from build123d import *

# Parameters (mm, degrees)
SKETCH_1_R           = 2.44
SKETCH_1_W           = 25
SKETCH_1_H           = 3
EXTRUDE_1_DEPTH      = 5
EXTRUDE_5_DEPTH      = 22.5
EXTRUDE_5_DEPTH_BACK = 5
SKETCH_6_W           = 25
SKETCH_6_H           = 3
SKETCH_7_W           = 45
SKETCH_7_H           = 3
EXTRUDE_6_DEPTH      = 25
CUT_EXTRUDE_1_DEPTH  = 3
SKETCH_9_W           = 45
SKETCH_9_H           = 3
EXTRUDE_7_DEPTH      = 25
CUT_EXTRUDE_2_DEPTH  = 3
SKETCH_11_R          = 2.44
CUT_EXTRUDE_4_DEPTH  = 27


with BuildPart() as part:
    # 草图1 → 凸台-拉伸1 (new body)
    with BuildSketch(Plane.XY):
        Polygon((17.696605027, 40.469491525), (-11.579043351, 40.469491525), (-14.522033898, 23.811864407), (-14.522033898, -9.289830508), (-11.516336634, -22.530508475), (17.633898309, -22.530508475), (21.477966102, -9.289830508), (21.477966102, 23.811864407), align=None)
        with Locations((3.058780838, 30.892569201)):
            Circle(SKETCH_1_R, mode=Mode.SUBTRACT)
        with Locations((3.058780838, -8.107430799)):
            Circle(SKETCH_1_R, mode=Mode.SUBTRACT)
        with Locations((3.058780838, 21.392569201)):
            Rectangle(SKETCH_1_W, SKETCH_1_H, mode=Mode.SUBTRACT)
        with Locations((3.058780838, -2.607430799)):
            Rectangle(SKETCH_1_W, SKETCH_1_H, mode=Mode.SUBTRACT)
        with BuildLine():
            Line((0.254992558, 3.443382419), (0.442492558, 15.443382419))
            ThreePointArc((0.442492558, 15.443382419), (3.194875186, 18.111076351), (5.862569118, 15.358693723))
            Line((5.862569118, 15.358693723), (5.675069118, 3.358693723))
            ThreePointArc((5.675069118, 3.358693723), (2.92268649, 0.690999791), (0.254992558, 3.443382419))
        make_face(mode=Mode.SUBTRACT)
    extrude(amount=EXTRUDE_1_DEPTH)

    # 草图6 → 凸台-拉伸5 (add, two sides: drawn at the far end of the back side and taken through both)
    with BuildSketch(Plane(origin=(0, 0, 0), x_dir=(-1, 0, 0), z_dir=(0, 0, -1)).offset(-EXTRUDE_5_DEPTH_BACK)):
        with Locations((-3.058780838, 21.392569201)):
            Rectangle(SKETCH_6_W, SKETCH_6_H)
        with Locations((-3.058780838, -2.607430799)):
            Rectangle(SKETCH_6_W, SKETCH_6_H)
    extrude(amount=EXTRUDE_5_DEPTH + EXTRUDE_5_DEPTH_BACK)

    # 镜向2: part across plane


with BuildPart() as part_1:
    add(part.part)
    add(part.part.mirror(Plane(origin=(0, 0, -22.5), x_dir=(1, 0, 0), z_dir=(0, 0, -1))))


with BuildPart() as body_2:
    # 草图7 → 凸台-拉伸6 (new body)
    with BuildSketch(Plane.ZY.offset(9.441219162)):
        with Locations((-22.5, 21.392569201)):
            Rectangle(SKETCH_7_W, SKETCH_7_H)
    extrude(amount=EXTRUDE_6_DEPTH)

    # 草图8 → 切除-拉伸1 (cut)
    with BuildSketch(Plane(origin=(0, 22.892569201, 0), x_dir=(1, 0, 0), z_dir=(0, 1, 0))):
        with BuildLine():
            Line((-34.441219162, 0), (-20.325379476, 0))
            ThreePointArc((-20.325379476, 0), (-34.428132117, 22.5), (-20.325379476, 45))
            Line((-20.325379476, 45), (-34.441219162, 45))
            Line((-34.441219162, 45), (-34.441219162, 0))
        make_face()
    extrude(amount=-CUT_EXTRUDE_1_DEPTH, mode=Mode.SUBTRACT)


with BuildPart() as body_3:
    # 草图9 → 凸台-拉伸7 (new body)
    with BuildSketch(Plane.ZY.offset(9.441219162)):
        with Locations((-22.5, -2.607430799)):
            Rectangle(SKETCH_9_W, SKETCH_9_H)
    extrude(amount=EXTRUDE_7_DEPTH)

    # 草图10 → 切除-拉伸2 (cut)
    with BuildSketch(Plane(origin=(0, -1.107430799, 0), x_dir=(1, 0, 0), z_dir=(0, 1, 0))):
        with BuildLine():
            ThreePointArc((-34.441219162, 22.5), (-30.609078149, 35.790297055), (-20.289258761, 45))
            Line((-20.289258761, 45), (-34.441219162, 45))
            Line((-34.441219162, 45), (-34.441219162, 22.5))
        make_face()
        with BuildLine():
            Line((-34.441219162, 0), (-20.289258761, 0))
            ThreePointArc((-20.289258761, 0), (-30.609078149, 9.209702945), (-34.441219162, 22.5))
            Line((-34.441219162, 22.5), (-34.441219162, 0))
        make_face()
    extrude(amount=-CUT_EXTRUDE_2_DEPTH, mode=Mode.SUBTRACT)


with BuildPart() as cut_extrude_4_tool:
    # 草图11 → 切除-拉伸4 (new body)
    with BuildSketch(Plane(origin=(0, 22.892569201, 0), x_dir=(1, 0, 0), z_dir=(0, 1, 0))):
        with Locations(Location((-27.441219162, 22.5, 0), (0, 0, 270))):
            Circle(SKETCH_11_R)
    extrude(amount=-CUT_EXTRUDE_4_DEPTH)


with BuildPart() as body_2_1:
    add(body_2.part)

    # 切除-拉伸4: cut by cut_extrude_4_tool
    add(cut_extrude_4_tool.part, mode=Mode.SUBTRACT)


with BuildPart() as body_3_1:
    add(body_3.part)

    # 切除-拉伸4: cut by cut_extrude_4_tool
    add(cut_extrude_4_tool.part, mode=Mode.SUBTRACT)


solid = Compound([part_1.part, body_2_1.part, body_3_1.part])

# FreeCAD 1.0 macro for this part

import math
import FreeCAD as App
import Part
import Sketcher


def add_polygon(sketch, points):
    """Adds a closed chain of lines whose ends are joined by coincident constraints."""
    first, n = sketch.GeometryCount, len(points)
    for a, b in zip(points, points[1:] + points[:1]):
        sketch.addGeometry(Part.LineSegment(App.Vector(*a, 0), App.Vector(*b, 0)), False)
    for i in range(n):
        sketch.addConstraint(Sketcher.Constraint("Coincident", first + i, 2, first + (i + 1) % n, 1))

doc = App.newDocument("Part")
body = doc.addObject("PartDesign::Body", "Body")

# Sketch on XY plane
sketch1 = doc.addObject("Sketcher::SketchObject", "Sketch")
body.addObject(sketch1)
sketch1.AttachmentSupport = (doc.XY_Plane, [""])
sketch1.MapMode = "FlatFace"
add_polygon(sketch1, [(17.696605, 40.469492), (-11.579043, 40.469492), (-14.522034, 23.811864), (-14.522034, -9.289831), (-11.516337, -22.530508), (17.633898, -22.530508), (21.477966, -9.289831), (21.477966, 23.811864)])  # lines 0-7
sketch1.addGeometry(Part.Circle(App.Vector(3.058781, -8.107431, 0), App.Vector(0, 0, 1), 2.44), False)  # 8
add_polygon(sketch1, [(15.558781, -4.107431), (-9.441219, -4.107431), (-9.441219, -1.107431), (15.558781, -1.107431)])  # lines 9-12
sketch1.addGeometry(Part.ArcOfCircle(Part.Circle(App.Vector(2.965031, 3.401038, 0), App.Vector(0, 0, 1), 2.710369), math.radians(179.104826), math.radians(359.104826)), False)  # 13
sketch1.addGeometry(Part.LineSegment(App.Vector(0.254993, 3.443382, 0), App.Vector(0.442493, 15.443382, 0)), False)  # 14
sketch1.addGeometry(Part.ArcOfCircle(Part.Circle(App.Vector(3.152531, 15.401038, 0), App.Vector(0, 0, 1), 2.710369), math.radians(-0.895174), math.radians(179.104826)), False)  # 15
sketch1.addGeometry(Part.LineSegment(App.Vector(5.862569, 15.358694, 0), App.Vector(5.675069, 3.358694, 0)), False)  # 16
add_polygon(sketch1, [(15.558781, 19.892569), (-9.441219, 19.892569), (-9.441219, 22.892569), (15.558781, 22.892569)])  # lines 17-20
sketch1.addGeometry(Part.Circle(App.Vector(3.058781, 30.892569, 0), App.Vector(0, 0, 1), 2.44), False)  # 21
sketch1.addConstraint([
    Sketcher.Constraint("Tangent", 13, 1, 14, 1),
    Sketcher.Constraint("Tangent", 14, 2, 15, 2),
    Sketcher.Constraint("Tangent", 15, 1, 16, 1),
    Sketcher.Constraint("Tangent", 16, 2, 13, 2),
    Sketcher.Constraint("Horizontal", 0),
    Sketcher.Constraint("Vertical", 2),
    Sketcher.Constraint("Horizontal", 4),
    Sketcher.Constraint("Vertical", 6),
    Sketcher.Constraint("Horizontal", 9),
    Sketcher.Constraint("Vertical", 10),
    Sketcher.Constraint("Horizontal", 11),
    Sketcher.Constraint("Vertical", 12),
    Sketcher.Constraint("Horizontal", 17),
    Sketcher.Constraint("Vertical", 18),
    Sketcher.Constraint("Horizontal", 19),
    Sketcher.Constraint("Vertical", 20),
    Sketcher.Constraint("Equal", 13, 15),
    Sketcher.Constraint("Equal", 8, 21),
    Sketcher.Constraint("Parallel", 3, 7),
    Sketcher.Constraint("Horizontal", 2, 2, 5, 2),
    Sketcher.Constraint("Horizontal", 1, 2, 6, 2),
    Sketcher.Constraint("Vertical", 8, 3, 21, 3),
    Sketcher.Constraint("Vertical", 10, 2, 17, 2),
    Sketcher.Constraint("Vertical", 12, 2, 19, 2),
    Sketcher.Constraint("Equal", 12, 18),
    Sketcher.Constraint("Diameter", 8, 4.88),
    Sketcher.Constraint("DistanceX", 9, 2, 9, 1, 25.0),
    Sketcher.Constraint("DistanceY", 10, 1, 10, 2, 3.0),
    Sketcher.Constraint("DistanceY", 13, 3, 15, 3, 12.0),
    Sketcher.Constraint("DistanceY", 8, 3, 21, 3, 39.0),
    Sketcher.Constraint("DistanceX", 1, 2, 6, 2, 36.0),
    Sketcher.Constraint("DistanceY", 8, 3, 9, 2, 4.0),
    Sketcher.Constraint("DistanceY", 17, 2, 21, 3, 11.0),
    Sketcher.Constraint("DistanceX", 9, 2, 8, 3, 12.5),
    Sketcher.Constraint("Radius", 13, 2.710369),
    Sketcher.Constraint("Distance", 5, 13.7874),
    Sketcher.Constraint("DistanceX", 0, 2, 0, 1, 29.275648),
    Sketcher.Constraint("DistanceX", -1, 1, 4, 2, 17.633898),
    Sketcher.Constraint("DistanceX", 13, 3, 15, 3, 0.1875),
    Sketcher.Constraint("DistanceY", 2, 2, 8, 3, 1.1824),
    Sketcher.Constraint("Distance", 7, 17.081429),
    Sketcher.Constraint("DistanceX", 4, 1, 4, 2, 29.150235),
    Sketcher.Constraint("DistanceY", 2, 2, 2, 1, 33.101695),
    Sketcher.Constraint("DistanceX", -1, 1, 8, 3, 3.058781),
    Sketcher.Constraint("DistanceY", 8, 3, -1, 1, 8.107431),
    Sketcher.Constraint("DistanceX", -1, 1, 13, 3, 2.965031),
    Sketcher.Constraint("DistanceY", -1, 1, 13, 3, 3.401038),
    Sketcher.Constraint("DistanceY", -1, 1, 0, 2, 40.469492),
])
pad1 = doc.addObject("PartDesign::Pad", "Pad")
body.addObject(pad1)
pad1.Profile = sketch1
pad1.Length = 5

# Sketch on XY plane
sketch2 = doc.addObject("Sketcher::SketchObject", "Sketch001")
body.addObject(sketch2)
sketch2.AttachmentSupport = (doc.XY_Plane, [""])
sketch2.MapMode = "FlatFace"
add_polygon(sketch2, [(15.558781, 22.892569), (15.558781, 19.892569), (-9.441219, 19.892569), (-9.441219, 22.892569)])  # lines 0-3
add_polygon(sketch2, [(15.558781, -1.107431), (15.558781, -4.107431), (-9.441219, -4.107431), (-9.441219, -1.107431)])  # lines 4-7
sketch2.addConstraint([
    Sketcher.Constraint("Vertical", 0),
    Sketcher.Constraint("Horizontal", 1),
    Sketcher.Constraint("Vertical", 2),
    Sketcher.Constraint("Horizontal", 3),
    Sketcher.Constraint("Vertical", 4),
    Sketcher.Constraint("Horizontal", 5),
    Sketcher.Constraint("Vertical", 6),
    Sketcher.Constraint("Horizontal", 7),
    Sketcher.Constraint("Vertical", 3, 2, 4, 2),
    Sketcher.Constraint("Vertical", 2, 2, 5, 2),
    Sketcher.Constraint("Equal", 2, 4),
    Sketcher.Constraint("DistanceX", 1, 2, 1, 1, 25.0),
    Sketcher.Constraint("DistanceY", 0, 2, 0, 1, 3.0),
    Sketcher.Constraint("DistanceY", 4, 2, 0, 2, 24.0),
    Sketcher.Constraint("DistanceX", -1, 1, 0, 2, 15.558781),
    Sketcher.Constraint("DistanceY", -1, 1, 0, 2, 19.892569),
])
pad2 = doc.addObject("PartDesign::Pad", "Pad001")
body.addObject(pad2)
pad2.Profile = sketch2
pad2.Type = "TwoLengths"
pad2.Length = 22.5
pad2.Length2 = 5
pad2.Reversed = True
body2 = doc.addObject("PartDesign::Body", "Body001")
doc.recompute()

body2.BaseFeature = body
doc.recompute()

mirroring = doc.addObject("Part::Mirroring", "Mirroring")
mirroring.Source = body
mirroring.Base = App.Vector(0, 0, -22.5)
mirroring.Normal = App.Vector(0, 0, -1)
body3 = doc.addObject("PartDesign::Body", "Body002")
body3.BaseFeature = mirroring
boolean = doc.addObject("PartDesign::Boolean", "Boolean")
body2.addObject(boolean)
boolean.Type = "Fuse"
boolean.addObjects([body3])
doc.recompute()
body4 = doc.addObject("PartDesign::Body", "Body003")

# Sketch on YZ plane
sketch3 = doc.addObject("Sketcher::SketchObject", "Sketch002")
body4.addObject(sketch3)
sketch3.AttachmentSupport = (doc.getObject("YZ_Plane003"), [""])
sketch3.MapMode = "FlatFace"
sketch3.AttachmentOffset = App.Placement(App.Vector(0, 0, -9.441219), App.Rotation())
add_polygon(sketch3, [(22.892569, -45), (19.892569, -45), (19.892569, 0), (22.892569, 0)])  # lines 0-3
sketch3.addConstraint([
    Sketcher.Constraint("Horizontal", 0),
    Sketcher.Constraint("Vertical", 1),
    Sketcher.Constraint("Horizontal", 2),
    Sketcher.Constraint("Vertical", 3),
    Sketcher.Constraint("PointOnObject", 1, 2, -1),
    Sketcher.Constraint("DistanceX", 0, 2, 0, 1, 3.0),
    Sketcher.Constraint("DistanceY", 1, 1, 1, 2, 45.0),
    Sketcher.Constraint("DistanceX", -1, 1, 0, 2, 19.892569),
])
pad3 = doc.addObject("PartDesign::Pad", "Pad002")
body4.addObject(pad3)
pad3.Profile = sketch3
pad3.Length = 25
pad3.Reversed = True

# Sketch on XZ plane
sketch4 = doc.addObject("Sketcher::SketchObject", "Sketch003")
body4.addObject(sketch4)
sketch4.AttachmentSupport = (doc.getObject("XZ_Plane003"), [""])
sketch4.MapMode = "FlatFace"
sketch4.AttachmentOffset = App.Placement(App.Vector(0, 0, -22.892569), App.Rotation())
sketch4.addGeometry([
    Part.LineSegment(App.Vector(-34.441219, 0, 0), App.Vector(-20.325379, 0, 0)),
    Part.ArcOfCircle(Part.Circle(App.Vector(-9.428132, -22.5, 0), App.Vector(0, 0, 1), 25), math.radians(115.841933), math.radians(244.158067)),
    Part.LineSegment(App.Vector(-20.325379, -45, 0), App.Vector(-34.441219, -45, 0)),
    Part.LineSegment(App.Vector(-34.441219, -45, 0), App.Vector(-34.441219, 0, 0)),
], False)
sketch4.addConstraint([
    Sketcher.Constraint("Coincident", 0, 2, 1, 1),
    Sketcher.Constraint("Coincident", 1, 2, 2, 1),
    Sketcher.Constraint("Coincident", 2, 2, 3, 1),
    Sketcher.Constraint("Coincident", 3, 2, 0, 1),
    Sketcher.Constraint("Horizontal", 0),
    Sketcher.Constraint("Horizontal", 2),
    Sketcher.Constraint("Vertical", 3),
    Sketcher.Constraint("PointOnObject", 0, 2, -1),
    Sketcher.Constraint("Vertical", 0, 2, 1, 2),
    Sketcher.Constraint("Radius", 1, 25.0),
    Sketcher.Constraint("DistanceY", 3, 1, 3, 2, 45.0),
    Sketcher.Constraint("DistanceX", 0, 1, 0, 2, 14.11584),
    Sketcher.Constraint("DistanceX", 0, 2, -1, 1, 20.325379),
])
pocket1 = doc.addObject("PartDesign::Pocket", "Pocket")
body4.addObject(pocket1)
pocket1.Profile = sketch4
pocket1.Length = 3
pocket1.Reversed = True
body5 = doc.addObject("PartDesign::Body", "Body004")

# Sketch on YZ plane
sketch5 = doc.addObject("Sketcher::SketchObject", "Sketch004")
body5.addObject(sketch5)
sketch5.AttachmentSupport = (doc.getObject("YZ_Plane004"), [""])
sketch5.MapMode = "FlatFace"
sketch5.AttachmentOffset = App.Placement(App.Vector(0, 0, -9.441219), App.Rotation())
add_polygon(sketch5, [(-1.107431, -45), (-4.107431, -45), (-4.107431, 0), (-1.107431, 0)])  # lines 0-3
sketch5.addConstraint([
    Sketcher.Constraint("Horizontal", 0),
    Sketcher.Constraint("Vertical", 1),
    Sketcher.Constraint("Horizontal", 2),
    Sketcher.Constraint("Vertical", 3),
    Sketcher.Constraint("PointOnObject", 1, 2, -1),
    Sketcher.Constraint("DistanceX", 0, 2, 0, 1, 3.0),
    Sketcher.Constraint("DistanceY", 1, 1, 1, 2, 45.0),
    Sketcher.Constraint("DistanceX", 0, 2, -1, 1, 4.107431),
])
pad4 = doc.addObject("PartDesign::Pad", "Pad003")
body5.addObject(pad4)
pad4.Profile = sketch5
pad4.Length = 25
pad4.Reversed = True

# Sketch on XZ plane
sketch6 = doc.addObject("Sketcher::SketchObject", "Sketch005")
body5.addObject(sketch6)
sketch6.AttachmentSupport = (doc.getObject("XZ_Plane004"), [""])
sketch6.MapMode = "FlatFace"
sketch6.AttachmentOffset = App.Placement(App.Vector(0, 0, 1.107431), App.Rotation())
sketch6.addGeometry([
    Part.ArcOfCircle(Part.Circle(App.Vector(-9.479024, -22.5, 0), App.Vector(0, 0, 1), 24.962195), math.radians(180), math.radians(244.337817)),  # 0
    Part.LineSegment(App.Vector(-20.289259, -45, 0), App.Vector(-34.441219, -45, 0)),  # 1
    Part.LineSegment(App.Vector(-34.441219, -45, 0), App.Vector(-34.441219, -22.5, 0)),  # 2
    Part.LineSegment(App.Vector(-34.441219, 0, 0), App.Vector(-20.289259, 0, 0)),  # 3
    Part.ArcOfCircle(Part.Circle(App.Vector(-9.479024, -22.5, 0), App.Vector(0, 0, 1), 24.962195), math.radians(115.662183), math.radians(180)),  # 4
    Part.LineSegment(App.Vector(-34.441219, -22.5, 0), App.Vector(-34.441219, 0, 0)),  # 5
], False)
sketch6.addConstraint([
    Sketcher.Constraint("Coincident", 0, 2, 1, 1),
    Sketcher.Constraint("Coincident", 1, 2, 2, 1),
    Sketcher.Constraint("Tangent", 2, 2, 0, 1),
    Sketcher.Constraint("Coincident", 3, 2, 4, 1),
    Sketcher.Constraint("Tangent", 4, 2, 5, 1),
    Sketcher.Constraint("Coincident", 5, 2, 3, 1),
    Sketcher.Constraint("Horizontal", 1),
    Sketcher.Constraint("Vertical", 2),
    Sketcher.Constraint("Horizontal", 3),
    Sketcher.Constraint("Vertical", 5),
    Sketcher.Constraint("Coincident", 4, 3, 0, 3),
    Sketcher.Constraint("Equal", 0, 4),
    Sketcher.Constraint("PointOnObject", 3, 2, -1),
    Sketcher.Constraint("Vertical", 0, 2, 3, 2),
    Sketcher.Constraint("DistanceY", 2, 1, 2, 2, 22.5),
    Sketcher.Constraint("Radius", 0, 24.962195),
    Sketcher.Constraint("DistanceX", 0, 2, -1, 1, 20.289259),
])
pocket2 = doc.addObject("PartDesign::Pocket", "Pocket001")
body5.addObject(pocket2)
pocket2.Profile = sketch6
pocket2.Length = 3
pocket2.Reversed = True
body6 = doc.addObject("PartDesign::Body", "Body005")

# Sketch on XZ plane
sketch7 = doc.addObject("Sketcher::SketchObject", "Sketch006")
body6.addObject(sketch7)
sketch7.AttachmentSupport = (doc.getObject("XZ_Plane005"), [""])
sketch7.MapMode = "FlatFace"
sketch7.AttachmentOffset = App.Placement(App.Vector(0, 0, -22.892569), App.Rotation())
sketch7.addGeometry(Part.Circle(App.Vector(-27.441219, -22.5, 0), App.Vector(0, 0, 1), 2.44), False)
sketch7.addConstraint([
    Sketcher.Constraint("Diameter", 0, 4.88),
    Sketcher.Constraint("DistanceY", 0, 3, -1, 1, 22.5),
    Sketcher.Constraint("DistanceX", 0, 3, -1, 1, 27.441219),
])
pad5 = doc.addObject("PartDesign::Pad", "Pad004")
body6.addObject(pad5)
pad5.Profile = sketch7
pad5.Length = 27
doc.recompute()

body7 = doc.addObject("PartDesign::Body", "Body006")
body7.BaseFeature = body6
boolean2 = doc.addObject("PartDesign::Boolean", "Boolean001")
body4.addObject(boolean2)
boolean2.Type = "Cut"
boolean2.addObjects([body7])
doc.recompute()

boolean3 = doc.addObject("PartDesign::Boolean", "Boolean002")
body5.addObject(boolean3)
boolean3.Type = "Cut"
boolean3.addObjects([body6])
mirroring.Visibility = False

doc.recompute()
